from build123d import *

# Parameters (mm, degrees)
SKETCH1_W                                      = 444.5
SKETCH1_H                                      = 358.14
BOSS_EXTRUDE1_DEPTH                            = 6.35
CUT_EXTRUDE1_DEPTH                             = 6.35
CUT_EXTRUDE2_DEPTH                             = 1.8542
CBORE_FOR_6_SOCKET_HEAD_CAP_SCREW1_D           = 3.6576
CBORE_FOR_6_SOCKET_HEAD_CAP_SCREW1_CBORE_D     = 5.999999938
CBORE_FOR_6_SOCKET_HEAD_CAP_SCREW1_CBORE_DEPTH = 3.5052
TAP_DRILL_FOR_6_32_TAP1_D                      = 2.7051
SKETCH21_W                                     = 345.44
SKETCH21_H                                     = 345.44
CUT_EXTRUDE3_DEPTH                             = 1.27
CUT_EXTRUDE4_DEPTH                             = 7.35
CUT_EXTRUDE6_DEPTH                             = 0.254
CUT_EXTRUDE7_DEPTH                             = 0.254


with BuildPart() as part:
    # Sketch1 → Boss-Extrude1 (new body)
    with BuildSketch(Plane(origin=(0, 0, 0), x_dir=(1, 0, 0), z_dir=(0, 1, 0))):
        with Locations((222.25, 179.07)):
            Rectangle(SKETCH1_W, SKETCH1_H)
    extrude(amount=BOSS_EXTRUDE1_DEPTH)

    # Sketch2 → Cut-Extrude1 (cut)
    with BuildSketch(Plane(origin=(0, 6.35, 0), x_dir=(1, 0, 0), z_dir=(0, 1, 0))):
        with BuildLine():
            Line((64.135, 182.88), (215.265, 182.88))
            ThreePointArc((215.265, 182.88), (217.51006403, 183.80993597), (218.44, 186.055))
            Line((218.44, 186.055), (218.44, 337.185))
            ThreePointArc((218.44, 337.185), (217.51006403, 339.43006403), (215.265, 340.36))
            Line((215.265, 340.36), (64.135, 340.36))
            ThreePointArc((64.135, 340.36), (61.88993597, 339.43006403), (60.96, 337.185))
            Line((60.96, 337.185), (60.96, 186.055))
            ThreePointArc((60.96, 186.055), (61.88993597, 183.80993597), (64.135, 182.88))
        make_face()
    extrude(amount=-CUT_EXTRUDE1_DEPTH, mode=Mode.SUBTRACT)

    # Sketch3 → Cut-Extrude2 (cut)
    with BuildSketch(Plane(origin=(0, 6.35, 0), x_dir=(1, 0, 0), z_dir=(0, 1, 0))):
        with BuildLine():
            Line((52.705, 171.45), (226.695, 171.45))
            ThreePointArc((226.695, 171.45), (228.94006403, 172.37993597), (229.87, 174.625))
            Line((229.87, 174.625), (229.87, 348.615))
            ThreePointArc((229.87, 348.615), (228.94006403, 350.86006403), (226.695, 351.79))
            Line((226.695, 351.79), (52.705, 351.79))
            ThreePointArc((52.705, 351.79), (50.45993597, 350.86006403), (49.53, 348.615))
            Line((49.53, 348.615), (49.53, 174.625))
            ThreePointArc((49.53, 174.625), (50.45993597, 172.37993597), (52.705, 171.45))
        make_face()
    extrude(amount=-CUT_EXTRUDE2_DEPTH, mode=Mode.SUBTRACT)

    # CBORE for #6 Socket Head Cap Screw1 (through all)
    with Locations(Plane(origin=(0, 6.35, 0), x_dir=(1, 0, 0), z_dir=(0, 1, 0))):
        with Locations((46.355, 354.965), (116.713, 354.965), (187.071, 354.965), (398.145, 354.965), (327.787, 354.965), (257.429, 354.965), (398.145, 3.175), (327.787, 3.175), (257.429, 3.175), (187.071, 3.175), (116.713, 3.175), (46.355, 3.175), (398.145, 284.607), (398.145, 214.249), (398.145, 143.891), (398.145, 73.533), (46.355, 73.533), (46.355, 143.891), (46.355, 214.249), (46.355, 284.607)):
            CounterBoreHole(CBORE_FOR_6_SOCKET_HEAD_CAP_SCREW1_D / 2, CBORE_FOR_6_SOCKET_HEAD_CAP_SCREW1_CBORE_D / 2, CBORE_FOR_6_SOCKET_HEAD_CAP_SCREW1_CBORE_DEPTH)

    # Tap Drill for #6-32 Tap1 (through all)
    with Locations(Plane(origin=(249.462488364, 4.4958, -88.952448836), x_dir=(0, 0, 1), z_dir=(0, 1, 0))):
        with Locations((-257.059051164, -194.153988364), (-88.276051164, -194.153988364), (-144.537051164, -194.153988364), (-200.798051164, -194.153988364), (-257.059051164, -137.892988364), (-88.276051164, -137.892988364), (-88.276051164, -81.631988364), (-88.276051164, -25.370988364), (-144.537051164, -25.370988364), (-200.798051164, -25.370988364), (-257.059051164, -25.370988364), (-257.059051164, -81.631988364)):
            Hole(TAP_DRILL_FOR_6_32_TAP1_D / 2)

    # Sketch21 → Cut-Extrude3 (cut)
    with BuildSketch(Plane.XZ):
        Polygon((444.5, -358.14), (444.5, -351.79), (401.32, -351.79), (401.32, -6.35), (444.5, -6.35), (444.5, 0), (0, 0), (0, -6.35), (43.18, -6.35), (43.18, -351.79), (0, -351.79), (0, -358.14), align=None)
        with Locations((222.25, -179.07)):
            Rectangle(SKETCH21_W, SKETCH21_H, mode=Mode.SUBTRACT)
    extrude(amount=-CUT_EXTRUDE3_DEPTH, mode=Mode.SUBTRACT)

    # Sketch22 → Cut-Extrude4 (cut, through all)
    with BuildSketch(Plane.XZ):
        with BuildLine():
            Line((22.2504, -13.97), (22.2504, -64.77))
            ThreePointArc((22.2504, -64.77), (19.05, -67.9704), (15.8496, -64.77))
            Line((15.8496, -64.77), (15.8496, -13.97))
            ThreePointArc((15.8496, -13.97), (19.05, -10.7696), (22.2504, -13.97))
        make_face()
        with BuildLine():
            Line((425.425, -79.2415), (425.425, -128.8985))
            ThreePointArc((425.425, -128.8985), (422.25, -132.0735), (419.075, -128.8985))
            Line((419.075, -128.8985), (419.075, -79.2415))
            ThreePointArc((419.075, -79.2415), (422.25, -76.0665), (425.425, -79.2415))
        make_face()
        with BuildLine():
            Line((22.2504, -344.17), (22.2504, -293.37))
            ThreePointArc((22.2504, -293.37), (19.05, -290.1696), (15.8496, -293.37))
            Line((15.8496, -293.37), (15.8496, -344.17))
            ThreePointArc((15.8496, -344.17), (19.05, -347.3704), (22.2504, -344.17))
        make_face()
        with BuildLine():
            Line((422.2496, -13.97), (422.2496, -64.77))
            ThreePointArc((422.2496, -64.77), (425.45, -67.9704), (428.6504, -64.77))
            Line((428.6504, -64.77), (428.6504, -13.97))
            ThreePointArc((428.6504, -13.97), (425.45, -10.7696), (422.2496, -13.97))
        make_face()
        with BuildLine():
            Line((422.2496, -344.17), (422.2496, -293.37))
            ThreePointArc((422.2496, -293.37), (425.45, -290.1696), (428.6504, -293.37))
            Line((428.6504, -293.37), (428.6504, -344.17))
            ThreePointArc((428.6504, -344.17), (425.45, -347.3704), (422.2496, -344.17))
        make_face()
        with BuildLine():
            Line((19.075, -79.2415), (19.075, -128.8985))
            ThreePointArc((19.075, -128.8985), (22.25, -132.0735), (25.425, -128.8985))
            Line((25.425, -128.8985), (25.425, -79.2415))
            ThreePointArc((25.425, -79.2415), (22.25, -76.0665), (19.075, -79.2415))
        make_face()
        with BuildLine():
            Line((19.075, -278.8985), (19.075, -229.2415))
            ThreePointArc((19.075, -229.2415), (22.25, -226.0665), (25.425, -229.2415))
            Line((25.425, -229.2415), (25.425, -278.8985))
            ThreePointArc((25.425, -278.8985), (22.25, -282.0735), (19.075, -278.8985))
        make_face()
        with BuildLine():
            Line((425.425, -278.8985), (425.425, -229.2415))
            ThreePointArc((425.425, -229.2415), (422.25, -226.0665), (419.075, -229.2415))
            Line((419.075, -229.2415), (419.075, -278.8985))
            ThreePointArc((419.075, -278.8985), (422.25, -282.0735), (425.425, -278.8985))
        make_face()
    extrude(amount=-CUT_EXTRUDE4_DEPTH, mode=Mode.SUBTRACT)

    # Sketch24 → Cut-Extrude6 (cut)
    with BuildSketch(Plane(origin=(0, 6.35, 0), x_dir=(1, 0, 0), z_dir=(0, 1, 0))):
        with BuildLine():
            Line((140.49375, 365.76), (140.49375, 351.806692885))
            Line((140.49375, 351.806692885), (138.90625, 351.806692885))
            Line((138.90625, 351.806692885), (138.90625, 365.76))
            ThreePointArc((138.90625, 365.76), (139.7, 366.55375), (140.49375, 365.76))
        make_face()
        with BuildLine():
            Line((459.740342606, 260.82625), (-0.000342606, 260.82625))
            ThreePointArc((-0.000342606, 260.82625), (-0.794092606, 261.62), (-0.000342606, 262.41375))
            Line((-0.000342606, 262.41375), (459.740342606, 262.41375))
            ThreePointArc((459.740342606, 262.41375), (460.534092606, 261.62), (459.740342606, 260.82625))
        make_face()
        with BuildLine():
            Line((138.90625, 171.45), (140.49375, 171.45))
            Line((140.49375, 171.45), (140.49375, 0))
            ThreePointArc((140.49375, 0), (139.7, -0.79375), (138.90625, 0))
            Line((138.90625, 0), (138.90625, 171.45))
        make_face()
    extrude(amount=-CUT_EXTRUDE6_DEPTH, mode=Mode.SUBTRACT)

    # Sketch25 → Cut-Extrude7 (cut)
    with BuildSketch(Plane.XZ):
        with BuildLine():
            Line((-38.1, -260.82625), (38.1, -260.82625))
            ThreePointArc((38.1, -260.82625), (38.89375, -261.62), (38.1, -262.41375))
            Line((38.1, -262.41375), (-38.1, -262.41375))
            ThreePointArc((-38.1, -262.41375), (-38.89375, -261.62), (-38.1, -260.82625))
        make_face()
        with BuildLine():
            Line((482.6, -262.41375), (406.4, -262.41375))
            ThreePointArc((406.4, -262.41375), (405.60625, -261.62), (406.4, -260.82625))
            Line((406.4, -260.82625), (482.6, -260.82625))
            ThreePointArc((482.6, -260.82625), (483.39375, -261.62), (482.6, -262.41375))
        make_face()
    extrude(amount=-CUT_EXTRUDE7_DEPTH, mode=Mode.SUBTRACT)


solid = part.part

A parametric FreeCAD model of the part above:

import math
import FreeCAD as App
import Part
import Sketcher

V = App.Vector
Q = App.Units.Quantity


def add_polygon(sketch, points):
    """Adds a closed chain of lines whose ends are joined by coincident constraints."""
    first, n = sketch.GeometryCount, len(points)
    for a, b in zip(points, points[1:] + points[:1]):
        sketch.addGeometry(Part.LineSegment(App.Vector(*a, 0), App.Vector(*b, 0)), False)
    for i in range(n):
        sketch.addConstraint(Sketcher.Constraint("Coincident", first + i, 2, first + (i + 1) % n, 1))

doc = App.newDocument("Part")
params = doc.addObject("Spreadsheet::Sheet", "Params")
for row, (alias, value) in enumerate([
    ("sketch1_width", "17.5 in"),
    ("sketch1_height", "14.1 in"),
    ("pad1_length", "0.25 in"),
    ("sketch2_radius", "0.125 in"),
    ("sketch2_width", "5.95 in"),
    ("pocket1_length", "0.25 in"),
    ("sketch3_radius", "0.125 in"),
    ("sketch3_width", "6.85 in"),
    ("pocket2_length", "0.073 in"),
    ("sketch4_diameter", "0.144 in"),
    ("hole_diameter", "0.144 in"),
    ("hole_cbore_diameter", "6 mm"),
    ("hole_cbore_depth", "0.138 in"),
    ("hole2_diameter", "0.1065 in"),
    ("sketch6_width", "1.7 in"),
    ("sketch6_width2", "17.5 in"),
    ("sketch6_width3", "13.6 in"),
    ("sketch6_height", "0.25 in"),
    ("pocket3_length", "0.05 in"),
    ("sketch7_height", "2 in"),
    ("sketch7_radius", "0.126 in"),
    ("sketch7_radius2", "0.125 in"),
    ("sketch7_height2", "1.955 in"),
    ("sketch8_radius", "0.03125 in"),
    ("sketch8_height", "6.75 in"),
    ("pocket5_length", "0.01 in"),
    ("sketch9_width", "3 in"),
    ("sketch9_radius", "0.03125 in"),
    ("pocket6_length", "0.01 in"),
], start=1):
    params.set(f"A{row}", alias)
    params.set(f"B{row}", "=" + value)
    params.setAlias(f"B{row}", alias)

body = doc.addObject("PartDesign::Body", "Body")

sketch1 = body.newObject("Sketcher::SketchObject", "Sketch")
sketch1.AttachmentSupport = (doc.getObject("XZ_Plane"), [""])
sketch1.MapMode = "FlatFace"
add_polygon(sketch1, [(0, -358), (0, 0), (444, 0), (444, -358)])
sketch1.addConstraint([
    Sketcher.Constraint("Vertical", 0),
    Sketcher.Constraint("Horizontal", 1),
    Sketcher.Constraint("Vertical", 2),
    Sketcher.Constraint("Horizontal", 3),
    Sketcher.Constraint("Coincident", 0, 2, -1, 1),
    Sketcher.Constraint("DistanceX", 1, 1, 1, 2, Q("17.5 in")),
    Sketcher.Constraint("DistanceY", 0, 1, 0, 2, Q("14.1 in")),
])
sketch1.setExpression("Constraints[9]", "Params.sketch1_width")
sketch1.setExpression("Constraints[10]", "Params.sketch1_height")
pad1 = body.newObject("PartDesign::Pad", "Pad")
pad1.Profile = sketch1
pad1.setExpression("Length", "Params.pad1_length")
pad1.Reversed = True

sketch2 = body.newObject("Sketcher::SketchObject", "Sketch001")
sketch2.AttachmentSupport = (doc.getObject("XZ_Plane"), [""])
sketch2.MapMode = "FlatFace"
sketch2.AttachmentOffset = App.Placement(V(0, 0, -0.25 * 25.4), App.Rotation())
sketch2.addGeometry([
    Part.LineSegment(V(64.1, -182.9, 0), V(215.3, -182.9, 0)),
    Part.ArcOfCircle(Part.Circle(V(215.3, -186.1, 0), V(0, 0, 1), 3.2), math.radians(0), math.radians(90)),
    Part.LineSegment(V(218.4, -186.1, 0), V(218.4, -337.2, 0)),
    Part.ArcOfCircle(Part.Circle(V(215.3, -337.2, 0), V(0, 0, 1), 3.2), math.radians(-90), math.radians(0)),
    Part.LineSegment(V(215.3, -340.4, 0), V(64.1, -340.4, 0)),
    Part.ArcOfCircle(Part.Circle(V(64.1, -337.2, 0), V(0, 0, 1), 3.2), math.radians(-180), math.radians(-90)),
    Part.LineSegment(V(61, -337.2, 0), V(61, -186.1, 0)),
    Part.ArcOfCircle(Part.Circle(V(64.1, -186.1, 0), V(0, 0, 1), 3.2), math.radians(90), math.radians(180)),
], False)
sketch2.addConstraint([
    Sketcher.Constraint("Tangent", 0, 2, 1, 2),
    Sketcher.Constraint("Tangent", 1, 1, 2, 1),
    Sketcher.Constraint("Tangent", 2, 2, 3, 2),
    Sketcher.Constraint("Tangent", 3, 1, 4, 1),
    Sketcher.Constraint("Tangent", 4, 2, 5, 2),
    Sketcher.Constraint("Tangent", 5, 1, 6, 1),
    Sketcher.Constraint("Tangent", 6, 2, 7, 2),
    Sketcher.Constraint("Tangent", 7, 1, 0, 1),
    Sketcher.Constraint("Horizontal", 0),
    Sketcher.Constraint("Vertical", 2),
    Sketcher.Constraint("Horizontal", 4),
    Sketcher.Constraint("Vertical", 6),
    Sketcher.Constraint("Equal", 1, 3),
    Sketcher.Constraint("Equal", 3, 5),
    Sketcher.Constraint("Equal", 5, 7),
    Sketcher.Constraint("Equal", 4, 2),
    Sketcher.Constraint("Radius", 1, Q("0.125 in")),
    Sketcher.Constraint("DistanceX", 0, 1, 0, 2, Q("5.95 in")),
    Sketcher.Constraint("DistanceY", 0, 2, -1, 1, Q("7.2 in")),
    Sketcher.Constraint("DistanceX", -1, 1, 1, 1, Q("8.6 in")),
])
sketch2.setExpression("Constraints[16]", "Params.sketch2_radius")
sketch2.setExpression("Constraints[17]", "Params.sketch2_width")
pocket1 = body.newObject("PartDesign::Pocket", "Pocket")
pocket1.Profile = sketch2
pocket1.setExpression("Length", "Params.pocket1_length")
pocket1.Reversed = True

sketch3 = body.newObject("Sketcher::SketchObject", "Sketch002")
sketch3.AttachmentSupport = (doc.getObject("XZ_Plane"), [""])
sketch3.MapMode = "FlatFace"
sketch3.AttachmentOffset = App.Placement(V(0, 0, -0.25 * 25.4), App.Rotation())
sketch3.addGeometry([
    Part.LineSegment(V(52.7, -171.4, 0), V(226.7, -171.4, 0)),
    Part.ArcOfCircle(Part.Circle(V(226.7, -174.6, 0), V(0, 0, 1), 3.2), math.radians(0), math.radians(90)),
    Part.LineSegment(V(229.9, -174.6, 0), V(229.9, -348.6, 0)),
    Part.ArcOfCircle(Part.Circle(V(226.7, -348.6, 0), V(0, 0, 1), 3.2), math.radians(-90), math.radians(0)),
    Part.LineSegment(V(226.7, -351.8, 0), V(52.7, -351.8, 0)),
    Part.ArcOfCircle(Part.Circle(V(52.7, -348.6, 0), V(0, 0, 1), 3.2), math.radians(-180), math.radians(-90)),
    Part.LineSegment(V(49.5, -348.6, 0), V(49.5, -174.6, 0)),
    Part.ArcOfCircle(Part.Circle(V(52.7, -174.6, 0), V(0, 0, 1), 3.2), math.radians(90), math.radians(180)),
], False)
sketch3.addConstraint([
    Sketcher.Constraint("Tangent", 0, 2, 1, 2),
    Sketcher.Constraint("Tangent", 1, 1, 2, 1),
    Sketcher.Constraint("Tangent", 2, 2, 3, 2),
    Sketcher.Constraint("Tangent", 3, 1, 4, 1),
    Sketcher.Constraint("Tangent", 4, 2, 5, 2),
    Sketcher.Constraint("Tangent", 5, 1, 6, 1),
    Sketcher.Constraint("Tangent", 6, 2, 7, 2),
    Sketcher.Constraint("Tangent", 7, 1, 0, 1),
    Sketcher.Constraint("Horizontal", 0),
    Sketcher.Constraint("Vertical", 2),
    Sketcher.Constraint("Horizontal", 4),
    Sketcher.Constraint("Vertical", 6),
    Sketcher.Constraint("Equal", 1, 3),
    Sketcher.Constraint("Equal", 3, 5),
    Sketcher.Constraint("Equal", 5, 7),
    Sketcher.Constraint("Equal", 4, 2),
    Sketcher.Constraint("Radius", 1, Q("0.125 in")),
    Sketcher.Constraint("DistanceX", 0, 1, 0, 2, Q("6.85 in")),
    Sketcher.Constraint("DistanceY", 0, 2, -1, 1, Q("6.75 in")),
    Sketcher.Constraint("DistanceX", -1, 1, 1, 1, Q("9.05 in")),
])
sketch3.setExpression("Constraints[16]", "Params.sketch3_radius")
sketch3.setExpression("Constraints[17]", "Params.sketch3_width")
pocket2 = body.newObject("PartDesign::Pocket", "Pocket001")
pocket2.Profile = sketch3
pocket2.setExpression("Length", "Params.pocket2_length")
pocket2.Reversed = True

sketch4 = body.newObject("Sketcher::SketchObject", "Sketch003")
sketch4.AttachmentSupport = (doc.getObject("XZ_Plane"), [""])
sketch4.MapMode = "FlatFace"
sketch4.AttachmentOffset = App.Placement(V(0, 0, -0.25 * 25.4), App.Rotation())
sketch4.addGeometry([
    Part.Circle(V(46.4, -355, 0), V(0, 0, 1), 1.8),
    Part.Circle(V(116.7, -355, 0), V(0, 0, 1), 1.8),
    Part.Circle(V(187.1, -355, 0), V(0, 0, 1), 1.8),
    Part.Circle(V(398.1, -355, 0), V(0, 0, 1), 1.8),
    Part.Circle(V(327.8, -355, 0), V(0, 0, 1), 1.8),
    Part.Circle(V(257.4, -355, 0), V(0, 0, 1), 1.8),
    Part.Circle(V(398.1, -3.2, 0), V(0, 0, 1), 1.8),
    Part.Circle(V(327.8, -3.2, 0), V(0, 0, 1), 1.8),
    Part.Circle(V(257.4, -3.2, 0), V(0, 0, 1), 1.8),
    Part.Circle(V(187.1, -3.2, 0), V(0, 0, 1), 1.8),
    Part.Circle(V(116.7, -3.2, 0), V(0, 0, 1), 1.8),
    Part.Circle(V(46.4, -3.2, 0), V(0, 0, 1), 1.8),
    Part.Circle(V(398.1, -284.6, 0), V(0, 0, 1), 1.8),
    Part.Circle(V(398.1, -214.2, 0), V(0, 0, 1), 1.8),
    Part.Circle(V(398.1, -143.9, 0), V(0, 0, 1), 1.8),
    Part.Circle(V(398.1, -73.5, 0), V(0, 0, 1), 1.8),
    Part.Circle(V(46.4, -73.5, 0), V(0, 0, 1), 1.8),
    Part.Circle(V(46.4, -143.9, 0), V(0, 0, 1), 1.8),
    Part.Circle(V(46.4, -214.2, 0), V(0, 0, 1), 1.8),
    Part.Circle(V(46.4, -284.6, 0), V(0, 0, 1), 1.8),
], False)
sketch4.addConstraint([
    Sketcher.Constraint("Equal", 0, 1),
    Sketcher.Constraint("Equal", 1, 2),
    Sketcher.Constraint("Equal", 2, 3),
    Sketcher.Constraint("Equal", 3, 4),
    Sketcher.Constraint("Equal", 4, 5),
    Sketcher.Constraint("Equal", 5, 6),
    Sketcher.Constraint("Equal", 6, 7),
    Sketcher.Constraint("Equal", 7, 8),
    Sketcher.Constraint("Equal", 8, 9),
    Sketcher.Constraint("Equal", 9, 10),
    Sketcher.Constraint("Equal", 10, 11),
    Sketcher.Constraint("Equal", 11, 12),
    Sketcher.Constraint("Equal", 12, 13),
    Sketcher.Constraint("Equal", 13, 14),
    Sketcher.Constraint("Equal", 14, 15),
    Sketcher.Constraint("Equal", 15, 16),
    Sketcher.Constraint("Equal", 16, 17),
    Sketcher.Constraint("Equal", 17, 18),
    Sketcher.Constraint("Equal", 18, 19),
    Sketcher.Constraint("Horizontal", 0, 3, 1, 3),
    Sketcher.Constraint("Horizontal", 1, 3, 2, 3),
    Sketcher.Constraint("Horizontal", 2, 3, 3, 3),
    Sketcher.Constraint("Horizontal", 3, 3, 4, 3),
    Sketcher.Constraint("Horizontal", 4, 3, 5, 3),
    Sketcher.Constraint("Horizontal", 6, 3, 7, 3),
    Sketcher.Constraint("Horizontal", 7, 3, 8, 3),
    Sketcher.Constraint("Horizontal", 8, 3, 9, 3),
    Sketcher.Constraint("Horizontal", 9, 3, 10, 3),
    Sketcher.Constraint("Horizontal", 10, 3, 11, 3),
    Sketcher.Constraint("Horizontal", 15, 3, 16, 3),
    Sketcher.Constraint("Horizontal", 14, 3, 17, 3),
    Sketcher.Constraint("Horizontal", 13, 3, 18, 3),
    Sketcher.Constraint("Horizontal", 12, 3, 19, 3),
    Sketcher.Constraint("Vertical", 3, 3, 6, 3),
    Sketcher.Constraint("Vertical", 4, 3, 7, 3),
    Sketcher.Constraint("Vertical", 5, 3, 8, 3),
    Sketcher.Constraint("Vertical", 2, 3, 9, 3),
    Sketcher.Constraint("Vertical", 1, 3, 10, 3),
    Sketcher.Constraint("Vertical", 0, 3, 11, 3),
    Sketcher.Constraint("Vertical", 6, 3, 12, 3),
    Sketcher.Constraint("Vertical", 12, 3, 13, 3),
    Sketcher.Constraint("Vertical", 13, 3, 14, 3),
    Sketcher.Constraint("Vertical", 14, 3, 15, 3),
    Sketcher.Constraint("Vertical", 11, 3, 16, 3),
    Sketcher.Constraint("Vertical", 16, 3, 17, 3),
    Sketcher.Constraint("Vertical", 17, 3, 18, 3),
    Sketcher.Constraint("Vertical", 18, 3, 19, 3),
    Sketcher.Constraint("Diameter", 0, Q("0.144 in")),
    Sketcher.Constraint("DistanceX", 0, 3, 1, 3, Q("2.77 in")),
    Sketcher.Constraint("DistanceX", 1, 3, 2, 3, Q("2.77 in")),
    Sketcher.Constraint("DistanceX", 2, 3, 3, 3, Q("8.31 in")),
    Sketcher.Constraint("DistanceX", 4, 3, 3, 3, Q("2.77 in")),
    Sketcher.Constraint("DistanceX", 2, 3, 5, 3, Q("2.77 in")),
    Sketcher.Constraint("DistanceY", 3, 3, 6, 3, Q("13.85 in")),
    Sketcher.Constraint("DistanceY", 3, 3, 12, 3, Q("2.77 in")),
    Sketcher.Constraint("DistanceY", 12, 3, 13, 3, Q("2.77 in")),
    Sketcher.Constraint("DistanceY", 13, 3, 14, 3, Q("2.77 in")),
    Sketcher.Constraint("DistanceY", 14, 3, 15, 3, Q("2.77 in")),
    Sketcher.Constraint("DistanceX", -1, 1, 0, 3, Q("1.825 in")),
    Sketcher.Constraint("DistanceY", 0, 3, -1, 1, Q("13.975 in")),
])
sketch4.setExpression("Constraints[47]", "Params.sketch4_diameter")
doc.recompute()
hole = body.newObject("PartDesign::Hole", "Hole")
hole.Profile = sketch4
hole.ThreadType = "None"
hole.setExpression("Diameter", "Params.hole_diameter")
hole.DepthType = "ThroughAll"
hole.HoleCutType = "Counterbore"
hole.setExpression("HoleCutDiameter", "Params.hole_cbore_diameter")
hole.setExpression("HoleCutDepth", "Params.hole_cbore_depth")
hole.Reversed = True

sketch5 = body.newObject("Sketcher::SketchObject", "Sketch004")
sketch5.AttachmentSupport = (doc.getObject("XZ_Plane"), [""])
sketch5.MapMode = "FlatFace"
sketch5.AttachmentOffset = App.Placement(V(0, 0, -0.177 * 25.4), App.Rotation())
sketch5.addGeometry([
    Part.Circle(V(55.3, -346, 0), V(0, 0, 1), 1.4),
    Part.Circle(V(55.3, -177.2, 0), V(0, 0, 1), 1.4),
    Part.Circle(V(55.3, -233.5, 0), V(0, 0, 1), 1.4),
    Part.Circle(V(55.3, -289.8, 0), V(0, 0, 1), 1.4),
    Part.Circle(V(111.6, -346, 0), V(0, 0, 1), 1.4),
    Part.Circle(V(111.6, -177.2, 0), V(0, 0, 1), 1.4),
    Part.Circle(V(167.8, -177.2, 0), V(0, 0, 1), 1.4),
    Part.Circle(V(224.1, -177.2, 0), V(0, 0, 1), 1.4),
    Part.Circle(V(224.1, -233.5, 0), V(0, 0, 1), 1.4),
    Part.Circle(V(224.1, -289.8, 0), V(0, 0, 1), 1.4),
    Part.Circle(V(224.1, -346, 0), V(0, 0, 1), 1.4),
    Part.Circle(V(167.8, -346, 0), V(0, 0, 1), 1.4),
], False)
sketch5.addConstraint([
    Sketcher.Constraint("Equal", 0, 1),
    Sketcher.Constraint("Equal", 1, 2),
    Sketcher.Constraint("Equal", 2, 3),
    Sketcher.Constraint("Equal", 3, 4),
    Sketcher.Constraint("Equal", 4, 5),
    Sketcher.Constraint("Equal", 5, 6),
    Sketcher.Constraint("Equal", 6, 7),
    Sketcher.Constraint("Equal", 7, 8),
    Sketcher.Constraint("Equal", 8, 9),
    Sketcher.Constraint("Equal", 9, 10),
    Sketcher.Constraint("Equal", 10, 11),
    Sketcher.Constraint("Horizontal", 0, 3, 4, 3),
    Sketcher.Constraint("Horizontal", 1, 3, 5, 3),
    Sketcher.Constraint("Horizontal", 5, 3, 6, 3),
    Sketcher.Constraint("Horizontal", 6, 3, 7, 3),
    Sketcher.Constraint("Horizontal", 2, 3, 8, 3),
    Sketcher.Constraint("Horizontal", 3, 3, 9, 3),
    Sketcher.Constraint("Horizontal", 4, 3, 10, 3),
    Sketcher.Constraint("Horizontal", 10, 3, 11, 3),
    Sketcher.Constraint("Vertical", 0, 3, 1, 3),
    Sketcher.Constraint("Vertical", 1, 3, 2, 3),
    Sketcher.Constraint("Vertical", 2, 3, 3, 3),
    Sketcher.Constraint("Vertical", 4, 3, 5, 3),
    Sketcher.Constraint("Vertical", 7, 3, 8, 3),
    Sketcher.Constraint("Vertical", 8, 3, 9, 3),
    Sketcher.Constraint("Vertical", 9, 3, 10, 3),
    Sketcher.Constraint("Vertical", 6, 3, 11, 3),
    Sketcher.Constraint("Diameter", 0, Q("0.1065 in")),
    Sketcher.Constraint("DistanceY", 0, 3, 2, 3, Q("4.43 in")),
    Sketcher.Constraint("DistanceY", 3, 3, 1, 3, Q("4.43 in")),
    Sketcher.Constraint("DistanceX", 1, 3, 6, 3, Q("4.43 in")),
    Sketcher.Constraint("DistanceX", 5, 3, 7, 3, Q("4.43 in")),
    Sketcher.Constraint("DistanceY", 0, 3, 1, 3, Q("6.645 in")),
    Sketcher.Constraint("DistanceX", 0, 3, 4, 3, Q("2.215 in")),
    Sketcher.Constraint("DistanceX", -1, 1, 0, 3, Q("2.1775 in")),
    Sketcher.Constraint("DistanceY", 0, 3, -1, 1, Q("13.6225 in")),
])
doc.recompute()
hole2 = body.newObject("PartDesign::Hole", "Hole001")
hole2.Profile = sketch5
hole2.ThreadType = "None"
hole2.setExpression("Diameter", "Params.hole2_diameter")
hole2.DepthType = "ThroughAll"
hole2.Reversed = True

sketch6 = body.newObject("Sketcher::SketchObject", "Sketch005")
sketch6.AttachmentSupport = (doc.getObject("XZ_Plane"), [""])
sketch6.MapMode = "FlatFace"
add_polygon(sketch6, [(444, -358), (444, -352), (401, -352), (401, -6), (444, -6), (444, 0), (0, 0), (0, -6), (43, -6), (43, -352), (0, -352), (0, -358)])
add_polygon(sketch6, [(395, -352), (50, -352), (50, -6), (395, -6)])
sketch6.addConstraint([
    Sketcher.Constraint("Vertical", 0),
    Sketcher.Constraint("Horizontal", 1),
    Sketcher.Constraint("Vertical", 2),
    Sketcher.Constraint("Horizontal", 3),
    Sketcher.Constraint("Vertical", 4),
    Sketcher.Constraint("Horizontal", 5),
    Sketcher.Constraint("Vertical", 6),
    Sketcher.Constraint("Horizontal", 7),
    Sketcher.Constraint("Vertical", 8),
    Sketcher.Constraint("Horizontal", 9),
    Sketcher.Constraint("Vertical", 10),
    Sketcher.Constraint("Horizontal", 11),
    Sketcher.Constraint("Horizontal", 12),
    Sketcher.Constraint("Vertical", 13),
    Sketcher.Constraint("Horizontal", 14),
    Sketcher.Constraint("Vertical", 15),
    Sketcher.Constraint("Coincident", 5, 2, -1, 1),
    Sketcher.Constraint("PointOnObject", 9, 2, -2),
    Sketcher.Constraint("Horizontal", 3, 2, 6, 2),
    Sketcher.Constraint("Horizontal", 1, 2, 8, 2),
    Sketcher.Constraint("Horizontal", 9, 2, 12, 2),
    Sketcher.Constraint("Horizontal", 7, 2, 13, 2),
    Sketcher.Constraint("Vertical", 0, 2, 3, 2),
    Sketcher.Constraint("Equal", 3, 7),
    Sketcher.Constraint("Equal", 14, 2),
    Sketcher.Constraint("Equal", 0, 4),
    Sketcher.Constraint("DistanceX", 1, 2, 1, 1, Q("1.7 in")),
    Sketcher.Constraint("DistanceX", 5, 2, 5, 1, Q("17.5 in")),
    Sketcher.Constraint("DistanceX", 12, 2, 12, 1, Q("13.6 in")),
    Sketcher.Constraint("DistanceY", 0, 1, 0, 2, Q("0.25 in")),
    Sketcher.Constraint("DistanceX", -1, 1, 12, 2, Q("1.95 in")),
])
sketch6.setExpression("Constraints[42]", "Params.sketch6_width")
sketch6.setExpression("Constraints[43]", "Params.sketch6_width2")
sketch6.setExpression("Constraints[44]", "Params.sketch6_width3")
sketch6.setExpression("Constraints[45]", "Params.sketch6_height")
pocket3 = body.newObject("PartDesign::Pocket", "Pocket002")
pocket3.Profile = sketch6
pocket3.setExpression("Length", "Params.pocket3_length")

sketch7 = body.newObject("Sketcher::SketchObject", "Sketch006")
sketch7.AttachmentSupport = (doc.getObject("XZ_Plane"), [""])
sketch7.MapMode = "FlatFace"
sketch7.addGeometry([
    Part.LineSegment(V(22.3, -64.8, 0), V(22.3, -14, 0)),
    Part.ArcOfCircle(Part.Circle(V(19.1, -14, 0), V(0, 0, 1), 3.2), math.radians(0), math.radians(180)),
    Part.LineSegment(V(15.8, -14, 0), V(15.8, -64.8, 0)),
    Part.ArcOfCircle(Part.Circle(V(19.1, -64.8, 0), V(0, 0, 1), 3.2), math.radians(180), math.radians(360)),
    Part.LineSegment(V(425.4, -128.9, 0), V(425.4, -79.2, 0)),
    Part.ArcOfCircle(Part.Circle(V(422.2, -79.2, 0), V(0, 0, 1), 3.2), math.radians(0), math.radians(180)),
    Part.LineSegment(V(419.1, -79.2, 0), V(419.1, -128.9, 0)),
    Part.ArcOfCircle(Part.Circle(V(422.2, -128.9, 0), V(0, 0, 1), 3.2), math.radians(180), math.radians(360)),
    Part.LineSegment(V(22.3, -344.2, 0), V(22.3, -293.4, 0)),
    Part.ArcOfCircle(Part.Circle(V(19.1, -293.4, 0), V(0, 0, 1), 3.2), math.radians(0), math.radians(180)),
    Part.LineSegment(V(15.8, -293.4, 0), V(15.8, -344.2, 0)),
    Part.ArcOfCircle(Part.Circle(V(19.1, -344.2, 0), V(0, 0, 1), 3.2), math.radians(180), math.radians(360)),
    Part.LineSegment(V(422.2, -14, 0), V(422.2, -64.8, 0)),
    Part.ArcOfCircle(Part.Circle(V(425.4, -64.8, 0), V(0, 0, 1), 3.2), math.radians(180), math.radians(360)),
    Part.LineSegment(V(428.7, -64.8, 0), V(428.7, -14, 0)),
    Part.ArcOfCircle(Part.Circle(V(425.4, -14, 0), V(0, 0, 1), 3.2), math.radians(0), math.radians(180)),
    Part.LineSegment(V(422.2, -293.4, 0), V(422.2, -344.2, 0)),
    Part.ArcOfCircle(Part.Circle(V(425.4, -344.2, 0), V(0, 0, 1), 3.2), math.radians(180), math.radians(360)),
    Part.LineSegment(V(428.7, -344.2, 0), V(428.7, -293.4, 0)),
    Part.ArcOfCircle(Part.Circle(V(425.4, -293.4, 0), V(0, 0, 1), 3.2), math.radians(0), math.radians(180)),
    Part.LineSegment(V(19.1, -79.2, 0), V(19.1, -128.9, 0)),
    Part.ArcOfCircle(Part.Circle(V(22.2, -128.9, 0), V(0, 0, 1), 3.2), math.radians(180), math.radians(360)),
    Part.LineSegment(V(25.4, -128.9, 0), V(25.4, -79.2, 0)),
    Part.ArcOfCircle(Part.Circle(V(22.2, -79.2, 0), V(0, 0, 1), 3.2), math.radians(0), math.radians(180)),
    Part.LineSegment(V(19.1, -229.2, 0), V(19.1, -278.9, 0)),
    Part.ArcOfCircle(Part.Circle(V(22.2, -278.9, 0), V(0, 0, 1), 3.2), math.radians(180), math.radians(360)),
    Part.LineSegment(V(25.4, -278.9, 0), V(25.4, -229.2, 0)),
    Part.ArcOfCircle(Part.Circle(V(22.2, -229.2, 0), V(0, 0, 1), 3.2), math.radians(0), math.radians(180)),
    Part.LineSegment(V(425.4, -278.9, 0), V(425.4, -229.2, 0)),
    Part.ArcOfCircle(Part.Circle(V(422.2, -229.2, 0), V(0, 0, 1), 3.2), math.radians(0), math.radians(180)),
    Part.LineSegment(V(419.1, -229.2, 0), V(419.1, -278.9, 0)),
    Part.ArcOfCircle(Part.Circle(V(422.2, -278.9, 0), V(0, 0, 1), 3.2), math.radians(180), math.radians(360)),
], False)
sketch7.addConstraint([
    Sketcher.Constraint("Tangent", 0, 2, 1, 1),
    Sketcher.Constraint("Tangent", 1, 2, 2, 1),
    Sketcher.Constraint("Tangent", 2, 2, 3, 1),
    Sketcher.Constraint("Tangent", 3, 2, 0, 1),
    Sketcher.Constraint("Tangent", 4, 2, 5, 1),
    Sketcher.Constraint("Tangent", 5, 2, 6, 1),
    Sketcher.Constraint("Tangent", 6, 2, 7, 1),
    Sketcher.Constraint("Tangent", 7, 2, 4, 1),
    Sketcher.Constraint("Tangent", 8, 2, 9, 1),
    Sketcher.Constraint("Tangent", 9, 2, 10, 1),
    Sketcher.Constraint("Tangent", 10, 2, 11, 1),
    Sketcher.Constraint("Tangent", 11, 2, 8, 1),
    Sketcher.Constraint("Tangent", 12, 2, 13, 1),
    Sketcher.Constraint("Tangent", 13, 2, 14, 1),
    Sketcher.Constraint("Tangent", 14, 2, 15, 1),
    Sketcher.Constraint("Tangent", 15, 2, 12, 1),
    Sketcher.Constraint("Tangent", 16, 2, 17, 1),
    Sketcher.Constraint("Tangent", 17, 2, 18, 1),
    Sketcher.Constraint("Tangent", 18, 2, 19, 1),
    Sketcher.Constraint("Tangent", 19, 2, 16, 1),
    Sketcher.Constraint("Tangent", 20, 2, 21, 1),
    Sketcher.Constraint("Tangent", 21, 2, 22, 1),
    Sketcher.Constraint("Tangent", 22, 2, 23, 1),
    Sketcher.Constraint("Tangent", 23, 2, 20, 1),
    Sketcher.Constraint("Tangent", 24, 2, 25, 1),
    Sketcher.Constraint("Tangent", 25, 2, 26, 1),
    Sketcher.Constraint("Tangent", 26, 2, 27, 1),
    Sketcher.Constraint("Tangent", 27, 2, 24, 1),
    Sketcher.Constraint("Tangent", 28, 2, 29, 1),
    Sketcher.Constraint("Tangent", 29, 2, 30, 1),
    Sketcher.Constraint("Tangent", 30, 2, 31, 1),
    Sketcher.Constraint("Tangent", 31, 2, 28, 1),
    Sketcher.Constraint("Vertical", 0),
    Sketcher.Constraint("Vertical", 2),
    Sketcher.Constraint("Vertical", 4),
    Sketcher.Constraint("Vertical", 6),
    Sketcher.Constraint("Vertical", 8),
    Sketcher.Constraint("Vertical", 10),
    Sketcher.Constraint("Vertical", 12),
    Sketcher.Constraint("Vertical", 14),
    Sketcher.Constraint("Vertical", 16),
    Sketcher.Constraint("Vertical", 18),
    Sketcher.Constraint("Vertical", 20),
    Sketcher.Constraint("Vertical", 22),
    Sketcher.Constraint("Vertical", 24),
    Sketcher.Constraint("Vertical", 26),
    Sketcher.Constraint("Vertical", 28),
    Sketcher.Constraint("Vertical", 30),
    Sketcher.Constraint("Equal", 3, 9),
    Sketcher.Constraint("Equal", 11, 13),
    Sketcher.Constraint("Equal", 15, 17),
    Sketcher.Constraint("Equal", 7, 21),
    Sketcher.Constraint("Equal", 23, 25),
    Sketcher.Constraint("Equal", 27, 29),
    Sketcher.Constraint("Horizontal", 3, 3, 13, 3),
    Sketcher.Constraint("Horizontal", 1, 3, 15, 3),
    Sketcher.Constraint("Horizontal", 11, 3, 17, 3),
    Sketcher.Constraint("Horizontal", 9, 3, 19, 3),
    Sketcher.Constraint("Horizontal", 7, 3, 21, 3),
    Sketcher.Constraint("Horizontal", 5, 3, 23, 3),
    Sketcher.Constraint("Horizontal", 27, 3, 29, 3),
    Sketcher.Constraint("Horizontal", 25, 3, 31, 3),
    Sketcher.Constraint("Vertical", 3, 3, 9, 3),
    Sketcher.Constraint("Vertical", 15, 3, 17, 3),
    Sketcher.Constraint("Vertical", 23, 3, 25, 3),
    Sketcher.Constraint("Vertical", 7, 3, 29, 3),
    Sketcher.Constraint("Equal", 2, 8),
    Sketcher.Constraint("Equal", 22, 24),
    Sketcher.Constraint("DistanceY", 0, 1, 0, 2, Q("2 in")),
    Sketcher.Constraint("Radius", 1, Q("0.126 in")),
    Sketcher.Constraint("Radius", 5, Q("0.125 in")),
    Sketcher.Constraint("DistanceY", 9, 3, 3, 3, Q("9 in")),
    Sketcher.Constraint("DistanceX", 3, 3, 13, 3, Q("16 in")),
    Sketcher.Constraint("DistanceY", 4, 1, 4, 2, Q("1.955 in")),
    Sketcher.Constraint("DistanceX", -1, 1, 1, 3, Q("0.75 in")),
    Sketcher.Constraint("DistanceY", 1, 3, -1, 1, Q("0.55 in")),
    Sketcher.Constraint("DistanceX", -1, 1, 5, 3, Q("422.25 mm")),
    Sketcher.Constraint("DistanceY", 5, 3, -1, 1, Q("79.2415 mm")),
    Sketcher.Constraint("DistanceX", -1, 1, 21, 3, Q("22.25 mm")),
    Sketcher.Constraint("DistanceY", 25, 3, -1, 1, Q("278.8985 mm")),
])
sketch7.setExpression("Constraints[68]", "Params.sketch7_height")
sketch7.setExpression("Constraints[69]", "Params.sketch7_radius")
sketch7.setExpression("Constraints[70]", "Params.sketch7_radius2")
sketch7.setExpression("Constraints[73]", "Params.sketch7_height2")
pocket4 = body.newObject("PartDesign::Pocket", "Pocket003")
pocket4.Profile = sketch7
pocket4.Type = "ThroughAll"

sketch8 = body.newObject("Sketcher::SketchObject", "Sketch007")
sketch8.AttachmentSupport = (doc.getObject("XZ_Plane"), [""])
sketch8.MapMode = "FlatFace"
sketch8.AttachmentOffset = App.Placement(V(0, 0, -0.25 * 25.4), App.Rotation())
sketch8.addGeometry([
    Part.LineSegment(V(140.5, -351.8, 0), V(140.5, -365.8, 0)),
    Part.ArcOfCircle(Part.Circle(V(139.7, -365.8, 0), V(0, 0, 1), 0.8), math.radians(180), math.radians(360)),
    Part.LineSegment(V(138.9, -365.8, 0), V(138.9, -351.8, 0)),
    Part.LineSegment(V(138.9, -351.8, 0), V(140.5, -351.8, 0)),
    Part.LineSegment(V(0, -260.8, 0), V(459.7, -260.8, 0)),
    Part.ArcOfCircle(Part.Circle(V(459.7, -261.6, 0), V(0, 0, 1), 0.8), math.radians(-90), math.radians(90)),
    Part.LineSegment(V(459.7, -262.4, 0), V(0, -262.4, 0)),
    Part.ArcOfCircle(Part.Circle(V(0, -261.6, 0), V(0, 0, 1), 0.8), math.radians(90), math.radians(270)),
    Part.LineSegment(V(140.5, -171.4, 0), V(138.9, -171.4, 0)),
    Part.LineSegment(V(138.9, -171.4, 0), V(138.9, 0, 0)),
    Part.ArcOfCircle(Part.Circle(V(139.7, 0, 0), V(0, 0, 1), 0.8), math.radians(0), math.radians(180)),
    Part.LineSegment(V(140.5, 0, 0), V(140.5, -171.4, 0)),
], False)
sketch8.addConstraint([
    Sketcher.Constraint("Tangent", 0, 2, 1, 2),
    Sketcher.Constraint("Tangent", 1, 1, 2, 1),
    Sketcher.Constraint("Coincident", 2, 2, 3, 1),
    Sketcher.Constraint("Coincident", 3, 2, 0, 1),
    Sketcher.Constraint("Tangent", 4, 2, 5, 2),
    Sketcher.Constraint("Tangent", 5, 1, 6, 1),
    Sketcher.Constraint("Tangent", 6, 2, 7, 2),
    Sketcher.Constraint("Tangent", 7, 1, 4, 1),
    Sketcher.Constraint("Coincident", 8, 2, 9, 1),
    Sketcher.Constraint("Tangent", 9, 2, 10, 2),
    Sketcher.Constraint("Tangent", 10, 1, 11, 1),
    Sketcher.Constraint("Coincident", 11, 2, 8, 1),
    Sketcher.Constraint("Vertical", 0),
    Sketcher.Constraint("Vertical", 2),
    Sketcher.Constraint("Horizontal", 3),
    Sketcher.Constraint("Horizontal", 4),
    Sketcher.Constraint("Horizontal", 6),
    Sketcher.Constraint("Horizontal", 8),
    Sketcher.Constraint("Vertical", 9),
    Sketcher.Constraint("Vertical", 11),
    Sketcher.Constraint("Equal", 1, 5),
    Sketcher.Constraint("Equal", 7, 10),
    Sketcher.Constraint("PointOnObject", 10, 3, -1),
    Sketcher.Constraint("Vertical", 1, 3, 10, 3),
    Sketcher.Constraint("Radius", 1, Q("0.03125 in")),
    Sketcher.Constraint("DistanceY", 9, 1, 9, 2, Q("6.75 in")),
    Sketcher.Constraint("DistanceX", -1, 1, 1, 3, Q("5.5 in")),
    Sketcher.Constraint("DistanceY", 1, 3, -1, 1, Q("14.4 in")),
    Sketcher.Constraint("DistanceY", 5, 3, -1, 1, Q("10.3 in")),
    Sketcher.Constraint("DistanceX", 4, 1, 4, 2, Q("459.740685 mm")),
    Sketcher.Constraint("DistanceY", 0, 2, 0, 1, Q("13.953307 mm")),
    Sketcher.Constraint("DistanceX", -1, 1, 5, 3, Q("459.740343 mm")),
])
sketch8.setExpression("Constraints[24]", "Params.sketch8_radius")
sketch8.setExpression("Constraints[25]", "Params.sketch8_height")
pocket5 = body.newObject("PartDesign::Pocket", "Pocket004")
pocket5.Profile = sketch8
pocket5.setExpression("Length", "Params.pocket5_length")
pocket5.Reversed = True

sketch9 = body.newObject("Sketcher::SketchObject", "Sketch008")
sketch9.AttachmentSupport = (doc.getObject("XZ_Plane"), [""])
sketch9.MapMode = "FlatFace"
sketch9.addGeometry([
    Part.LineSegment(V(38.1, -260.8, 0), V(-38.1, -260.8, 0)),
    Part.ArcOfCircle(Part.Circle(V(-38.1, -261.6, 0), V(0, 0, 1), 0.8), math.radians(90), math.radians(270)),
    Part.LineSegment(V(-38.1, -262.4, 0), V(38.1, -262.4, 0)),
    Part.ArcOfCircle(Part.Circle(V(38.1, -261.6, 0), V(0, 0, 1), 0.8), math.radians(-90), math.radians(90)),
    Part.LineSegment(V(406.4, -262.4, 0), V(482.6, -262.4, 0)),
    Part.ArcOfCircle(Part.Circle(V(482.6, -261.6, 0), V(0, 0, 1), 0.8), math.radians(-90), math.radians(90)),
    Part.LineSegment(V(482.6, -260.8, 0), V(406.4, -260.8, 0)),
    Part.ArcOfCircle(Part.Circle(V(406.4, -261.6, 0), V(0, 0, 1), 0.8), math.radians(90), math.radians(270)),
], False)
sketch9.addConstraint([
    Sketcher.Constraint("Tangent", 0, 2, 1, 1),
    Sketcher.Constraint("Tangent", 1, 2, 2, 1),
    Sketcher.Constraint("Tangent", 2, 2, 3, 1),
    Sketcher.Constraint("Tangent", 3, 2, 0, 1),
    Sketcher.Constraint("Tangent", 4, 2, 5, 1),
    Sketcher.Constraint("Tangent", 5, 2, 6, 1),
    Sketcher.Constraint("Tangent", 6, 2, 7, 1),
    Sketcher.Constraint("Tangent", 7, 2, 4, 1),
    Sketcher.Constraint("Horizontal", 0),
    Sketcher.Constraint("Horizontal", 2),
    Sketcher.Constraint("Horizontal", 4),
    Sketcher.Constraint("Horizontal", 6),
    Sketcher.Constraint("Equal", 3, 5),
    Sketcher.Constraint("Horizontal", 3, 3, 5, 3),
    Sketcher.Constraint("Equal", 2, 4),
    Sketcher.Constraint("DistanceX", 0, 2, 0, 1, Q("3 in")),
    Sketcher.Constraint("DistanceX", -1, 1, 5, 3, Q("19 in")),
    Sketcher.Constraint("Radius", 1, Q("0.03125 in")),
    Sketcher.Constraint("DistanceX", 1, 3, -1, 1, Q("1.5 in")),
    Sketcher.Constraint("DistanceY", 1, 3, -1, 1, Q("10.3 in")),
])
sketch9.setExpression("Constraints[15]", "Params.sketch9_width")
sketch9.setExpression("Constraints[17]", "Params.sketch9_radius")
pocket6 = body.newObject("PartDesign::Pocket", "Pocket005")
pocket6.Profile = sketch9
pocket6.setExpression("Length", "Params.pocket6_length")

doc.recompute()
